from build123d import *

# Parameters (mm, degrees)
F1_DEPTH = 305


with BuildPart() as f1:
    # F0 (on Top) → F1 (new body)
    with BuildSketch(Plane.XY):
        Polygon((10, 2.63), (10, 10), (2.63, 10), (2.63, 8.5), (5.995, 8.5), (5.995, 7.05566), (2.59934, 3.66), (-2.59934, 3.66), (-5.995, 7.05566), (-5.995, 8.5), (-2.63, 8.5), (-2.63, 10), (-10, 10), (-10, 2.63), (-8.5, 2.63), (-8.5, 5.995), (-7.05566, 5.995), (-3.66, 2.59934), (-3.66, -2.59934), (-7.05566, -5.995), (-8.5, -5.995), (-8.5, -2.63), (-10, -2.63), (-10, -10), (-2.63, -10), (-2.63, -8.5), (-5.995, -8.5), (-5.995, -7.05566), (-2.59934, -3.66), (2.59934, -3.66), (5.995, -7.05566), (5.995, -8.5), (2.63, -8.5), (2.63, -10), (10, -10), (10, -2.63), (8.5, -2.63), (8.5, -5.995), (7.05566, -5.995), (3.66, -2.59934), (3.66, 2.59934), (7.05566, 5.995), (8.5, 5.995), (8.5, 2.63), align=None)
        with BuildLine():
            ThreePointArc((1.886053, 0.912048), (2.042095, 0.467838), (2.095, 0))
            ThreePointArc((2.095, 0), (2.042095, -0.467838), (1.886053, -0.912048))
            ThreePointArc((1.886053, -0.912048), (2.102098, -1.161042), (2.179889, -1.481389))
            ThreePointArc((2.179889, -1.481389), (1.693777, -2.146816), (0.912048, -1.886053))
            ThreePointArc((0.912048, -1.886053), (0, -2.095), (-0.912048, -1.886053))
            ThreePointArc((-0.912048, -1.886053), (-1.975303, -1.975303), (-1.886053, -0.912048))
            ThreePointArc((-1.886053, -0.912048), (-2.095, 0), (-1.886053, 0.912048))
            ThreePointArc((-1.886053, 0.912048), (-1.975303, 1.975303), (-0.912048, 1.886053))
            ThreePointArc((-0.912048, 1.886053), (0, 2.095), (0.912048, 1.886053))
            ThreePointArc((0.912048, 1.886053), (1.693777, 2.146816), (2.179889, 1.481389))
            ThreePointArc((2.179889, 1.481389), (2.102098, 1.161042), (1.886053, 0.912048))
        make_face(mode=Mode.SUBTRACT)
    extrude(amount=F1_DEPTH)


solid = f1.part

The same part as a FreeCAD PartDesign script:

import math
import FreeCAD as App
import Part
import Sketcher
Q = App.Units.Quantity

doc = App.newDocument("Part")
params = doc.addObject("Spreadsheet::Sheet", "Params")
for row, (alias, value) in enumerate([
    ("sketch1_width", "1.5 mm"),
    ("sketch1_width2", "7.37 mm"),
    ("pad1_length", "305 mm"),
], start=1):
    params.set(f"A{row}", alias)
    params.set(f"B{row}", "=" + value)
    params.setAlias(f"B{row}", alias)

body = doc.addObject("PartDesign::Body", "Body")

# Sketch on XY plane
sketch1 = body.newObject("Sketcher::SketchObject", "Sketch")
sketch1.AttachmentSupport = (doc.getObject("XY_Plane"), [""])
sketch1.MapMode = "FlatFace"
sketch1.addGeometry([
    Part.LineSegment(App.Vector(10, 2.6, 0), App.Vector(10, 10, 0)),  # 0
    Part.LineSegment(App.Vector(10, 10, 0), App.Vector(2.6, 10, 0)),  # 1
    Part.LineSegment(App.Vector(2.6, 10, 0), App.Vector(2.6, 8.5, 0)),  # 2
    Part.LineSegment(App.Vector(2.6, 8.5, 0), App.Vector(6, 8.5, 0)),  # 3
    Part.LineSegment(App.Vector(6, 8.5, 0), App.Vector(6, 7.1, 0)),  # 4
    Part.LineSegment(App.Vector(6, 7.1, 0), App.Vector(2.6, 3.7, 0)),  # 5
    Part.LineSegment(App.Vector(2.6, 3.7, 0), App.Vector(-2.6, 3.7, 0)),  # 6
    Part.LineSegment(App.Vector(-2.6, 3.7, 0), App.Vector(-6, 7.1, 0)),  # 7
    Part.LineSegment(App.Vector(-6, 7.1, 0), App.Vector(-6, 8.5, 0)),  # 8
    Part.LineSegment(App.Vector(-6, 8.5, 0), App.Vector(-2.6, 8.5, 0)),  # 9
    Part.LineSegment(App.Vector(-2.6, 8.5, 0), App.Vector(-2.6, 10, 0)),  # 10
    Part.LineSegment(App.Vector(-2.6, 10, 0), App.Vector(-10, 10, 0)),  # 11
    Part.LineSegment(App.Vector(-10, 10, 0), App.Vector(-10, 2.6, 0)),  # 12
    Part.LineSegment(App.Vector(-10, 2.6, 0), App.Vector(-8.5, 2.6, 0)),  # 13
    Part.LineSegment(App.Vector(-8.5, 2.6, 0), App.Vector(-8.5, 6, 0)),  # 14
    Part.LineSegment(App.Vector(-8.5, 6, 0), App.Vector(-7.1, 6, 0)),  # 15
    Part.LineSegment(App.Vector(-7.1, 6, 0), App.Vector(-3.7, 2.6, 0)),  # 16
    Part.LineSegment(App.Vector(-3.7, 2.6, 0), App.Vector(-3.7, -2.6, 0)),  # 17
    Part.LineSegment(App.Vector(-3.7, -2.6, 0), App.Vector(-7.1, -6, 0)),  # 18
    Part.LineSegment(App.Vector(-7.1, -6, 0), App.Vector(-8.5, -6, 0)),  # 19
    Part.LineSegment(App.Vector(-8.5, -6, 0), App.Vector(-8.5, -2.6, 0)),  # 20
    Part.LineSegment(App.Vector(-8.5, -2.6, 0), App.Vector(-10, -2.6, 0)),  # 21
    Part.LineSegment(App.Vector(-10, -2.6, 0), App.Vector(-10, -10, 0)),  # 22
    Part.LineSegment(App.Vector(-10, -10, 0), App.Vector(-2.6, -10, 0)),  # 23
    Part.LineSegment(App.Vector(-2.6, -10, 0), App.Vector(-2.6, -8.5, 0)),  # 24
    Part.LineSegment(App.Vector(-2.6, -8.5, 0), App.Vector(-6, -8.5, 0)),  # 25
    Part.LineSegment(App.Vector(-6, -8.5, 0), App.Vector(-6, -7.1, 0)),  # 26
    Part.LineSegment(App.Vector(-6, -7.1, 0), App.Vector(-2.6, -3.7, 0)),  # 27
    Part.LineSegment(App.Vector(-2.6, -3.7, 0), App.Vector(2.6, -3.7, 0)),  # 28
    Part.LineSegment(App.Vector(2.6, -3.7, 0), App.Vector(6, -7.1, 0)),  # 29
    Part.LineSegment(App.Vector(6, -7.1, 0), App.Vector(6, -8.5, 0)),  # 30
    Part.LineSegment(App.Vector(6, -8.5, 0), App.Vector(2.6, -8.5, 0)),  # 31
    Part.LineSegment(App.Vector(2.6, -8.5, 0), App.Vector(2.6, -10, 0)),  # 32
    Part.LineSegment(App.Vector(2.6, -10, 0), App.Vector(10, -10, 0)),  # 33
    Part.LineSegment(App.Vector(10, -10, 0), App.Vector(10, -2.6, 0)),  # 34
    Part.LineSegment(App.Vector(10, -2.6, 0), App.Vector(8.5, -2.6, 0)),  # 35
    Part.LineSegment(App.Vector(8.5, -2.6, 0), App.Vector(8.5, -6, 0)),  # 36
    Part.LineSegment(App.Vector(8.5, -6, 0), App.Vector(7.1, -6, 0)),  # 37
    Part.LineSegment(App.Vector(7.1, -6, 0), App.Vector(3.7, -2.6, 0)),  # 38
    Part.LineSegment(App.Vector(3.7, -2.6, 0), App.Vector(3.7, 2.6, 0)),  # 39
    Part.LineSegment(App.Vector(3.7, 2.6, 0), App.Vector(7.1, 6, 0)),  # 40
    Part.LineSegment(App.Vector(7.1, 6, 0), App.Vector(8.5, 6, 0)),  # 41
    Part.LineSegment(App.Vector(8.5, 6, 0), App.Vector(8.5, 2.6, 0)),  # 42
    Part.LineSegment(App.Vector(8.5, 2.6, 0), App.Vector(10, 2.6, 0)),  # 43
    Part.ArcOfCircle(Part.Circle(App.Vector(1.5, 1.5, 0), App.Vector(0, 0, 1), 0.7), math.radians(-55), math.radians(0)),  # 44
    Part.ArcOfCircle(Part.Circle(App.Vector(0, 0, 0), App.Vector(0, 0, 1), 2.1), math.radians(0), math.radians(26)),  # 45
    Part.ArcOfCircle(Part.Circle(App.Vector(0, 0, 0), App.Vector(0, 0, 1), 2.1), math.radians(-26), math.radians(0)),  # 46
    Part.ArcOfCircle(Part.Circle(App.Vector(1.5, -1.5, 0), App.Vector(0, 0, 1), 0.7), math.radians(0), math.radians(55)),  # 47
    Part.ArcOfCircle(Part.Circle(App.Vector(1.5, -1.5, 0), App.Vector(0, 0, 1), 0.7), math.radians(-145), math.radians(0)),  # 48
    Part.ArcOfCircle(Part.Circle(App.Vector(0, 0, 0), App.Vector(0, 0, 1), 2.1), math.radians(-116), math.radians(-64)),  # 49
    Part.ArcOfCircle(Part.Circle(App.Vector(-1.5, -1.5, 0), App.Vector(0, 0, 1), 0.7), math.radians(125), math.radians(325)),  # 50
    Part.ArcOfCircle(Part.Circle(App.Vector(0, 0, 0), App.Vector(0, 0, 1), 2.1), math.radians(154), math.radians(206)),  # 51
    Part.ArcOfCircle(Part.Circle(App.Vector(-1.5, 1.5, 0), App.Vector(0, 0, 1), 0.7), math.radians(35), math.radians(235)),  # 52
    Part.ArcOfCircle(Part.Circle(App.Vector(0, 0, 0), App.Vector(0, 0, 1), 2.1), math.radians(64), math.radians(116)),  # 53
    Part.ArcOfCircle(Part.Circle(App.Vector(1.5, 1.5, 0), App.Vector(0, 0, 1), 0.7), math.radians(0), math.radians(145)),  # 54
], False)
sketch1.addConstraint([
    Sketcher.Constraint("Coincident", 0, 2, 1, 1),
    Sketcher.Constraint("Coincident", 1, 2, 2, 1),
    Sketcher.Constraint("Coincident", 2, 2, 3, 1),
    Sketcher.Constraint("Coincident", 3, 2, 4, 1),
    Sketcher.Constraint("Coincident", 4, 2, 5, 1),
    Sketcher.Constraint("Coincident", 5, 2, 6, 1),
    Sketcher.Constraint("Coincident", 6, 2, 7, 1),
    Sketcher.Constraint("Coincident", 7, 2, 8, 1),
    Sketcher.Constraint("Coincident", 8, 2, 9, 1),
    Sketcher.Constraint("Coincident", 9, 2, 10, 1),
    Sketcher.Constraint("Coincident", 10, 2, 11, 1),
    Sketcher.Constraint("Coincident", 11, 2, 12, 1),
    Sketcher.Constraint("Coincident", 12, 2, 13, 1),
    Sketcher.Constraint("Coincident", 13, 2, 14, 1),
    Sketcher.Constraint("Coincident", 14, 2, 15, 1),
    Sketcher.Constraint("Coincident", 15, 2, 16, 1),
    Sketcher.Constraint("Coincident", 16, 2, 17, 1),
    Sketcher.Constraint("Coincident", 17, 2, 18, 1),
    Sketcher.Constraint("Coincident", 18, 2, 19, 1),
    Sketcher.Constraint("Coincident", 19, 2, 20, 1),
    Sketcher.Constraint("Coincident", 20, 2, 21, 1),
    Sketcher.Constraint("Coincident", 21, 2, 22, 1),
    Sketcher.Constraint("Coincident", 22, 2, 23, 1),
    Sketcher.Constraint("Coincident", 23, 2, 24, 1),
    Sketcher.Constraint("Coincident", 24, 2, 25, 1),
    Sketcher.Constraint("Coincident", 25, 2, 26, 1),
    Sketcher.Constraint("Coincident", 26, 2, 27, 1),
    Sketcher.Constraint("Coincident", 27, 2, 28, 1),
    Sketcher.Constraint("Coincident", 28, 2, 29, 1),
    Sketcher.Constraint("Coincident", 29, 2, 30, 1),
    Sketcher.Constraint("Coincident", 30, 2, 31, 1),
    Sketcher.Constraint("Coincident", 31, 2, 32, 1),
    Sketcher.Constraint("Coincident", 32, 2, 33, 1),
    Sketcher.Constraint("Coincident", 33, 2, 34, 1),
    Sketcher.Constraint("Coincident", 34, 2, 35, 1),
    Sketcher.Constraint("Coincident", 35, 2, 36, 1),
    Sketcher.Constraint("Coincident", 36, 2, 37, 1),
    Sketcher.Constraint("Coincident", 37, 2, 38, 1),
    Sketcher.Constraint("Coincident", 38, 2, 39, 1),
    Sketcher.Constraint("Coincident", 39, 2, 40, 1),
    Sketcher.Constraint("Coincident", 40, 2, 41, 1),
    Sketcher.Constraint("Coincident", 41, 2, 42, 1),
    Sketcher.Constraint("Coincident", 42, 2, 43, 1),
    Sketcher.Constraint("Coincident", 43, 2, 0, 1),
    Sketcher.Constraint("Coincident", 44, 1, 45, 2),
    Sketcher.Constraint("Coincident", 45, 1, 46, 2),
    Sketcher.Constraint("Coincident", 46, 1, 47, 2),
    Sketcher.Constraint("Coincident", 47, 1, 48, 2),
    Sketcher.Constraint("Coincident", 48, 1, 49, 2),
    Sketcher.Constraint("Coincident", 49, 1, 50, 2),
    Sketcher.Constraint("Coincident", 50, 1, 51, 2),
    Sketcher.Constraint("Coincident", 51, 1, 52, 2),
    Sketcher.Constraint("Coincident", 52, 1, 53, 2),
    Sketcher.Constraint("Coincident", 53, 1, 54, 2),
    Sketcher.Constraint("Coincident", 54, 1, 44, 2),
    Sketcher.Constraint("Vertical", 0),
    Sketcher.Constraint("Horizontal", 1),
    Sketcher.Constraint("Vertical", 2),
    Sketcher.Constraint("Horizontal", 3),
    Sketcher.Constraint("Vertical", 4),
    Sketcher.Constraint("Horizontal", 6),
    Sketcher.Constraint("Vertical", 8),
    Sketcher.Constraint("Horizontal", 9),
    Sketcher.Constraint("Vertical", 10),
    Sketcher.Constraint("Horizontal", 11),
    Sketcher.Constraint("Vertical", 12),
    Sketcher.Constraint("Horizontal", 13),
    Sketcher.Constraint("Vertical", 14),
    Sketcher.Constraint("Horizontal", 15),
    Sketcher.Constraint("Vertical", 17),
    Sketcher.Constraint("Horizontal", 19),
    Sketcher.Constraint("Vertical", 20),
    Sketcher.Constraint("Horizontal", 21),
    Sketcher.Constraint("Vertical", 22),
    Sketcher.Constraint("Horizontal", 23),
    Sketcher.Constraint("Vertical", 24),
    Sketcher.Constraint("Horizontal", 25),
    Sketcher.Constraint("Vertical", 26),
    Sketcher.Constraint("Horizontal", 28),
    Sketcher.Constraint("Vertical", 30),
    Sketcher.Constraint("Horizontal", 31),
    Sketcher.Constraint("Vertical", 32),
    Sketcher.Constraint("Horizontal", 33),
    Sketcher.Constraint("Vertical", 34),
    Sketcher.Constraint("Horizontal", 35),
    Sketcher.Constraint("Vertical", 36),
    Sketcher.Constraint("Horizontal", 37),
    Sketcher.Constraint("Vertical", 39),
    Sketcher.Constraint("Horizontal", 41),
    Sketcher.Constraint("Vertical", 42),
    Sketcher.Constraint("Horizontal", 43),
    Sketcher.Constraint("Coincident", 49, 3, -1, 1),
    Sketcher.Constraint("Coincident", 51, 3, -1, 1),
    Sketcher.Constraint("Coincident", 53, 3, -1, 1),
    Sketcher.Constraint("Coincident", 46, 3, 45, 3),
    Sketcher.Constraint("Coincident", 48, 3, 47, 3),
    Sketcher.Constraint("Coincident", 54, 3, 44, 3),
    Sketcher.Constraint("Equal", 44, 47),
    Sketcher.Constraint("Equal", 48, 50),
    Sketcher.Constraint("Equal", 49, 51),
    Sketcher.Constraint("Equal", 50, 52),
    Sketcher.Constraint("Equal", 51, 53),
    Sketcher.Constraint("Symmetric", 44, 3, 50, 3, -1, 1),
    Sketcher.Constraint("Symmetric", 47, 3, 52, 3, -1, 1),
    Sketcher.Constraint("Symmetric", 0, 2, 22, 2, -1, 1),
    Sketcher.Constraint("Symmetric", 2, 2, 24, 2, -1, 1),
    Sketcher.Constraint("Symmetric", 4, 2, 26, 2, -1, 1),
    Sketcher.Constraint("Symmetric", 5, 2, 27, 2, -1, 1),
    Sketcher.Constraint("Symmetric", 7, 2, 29, 2, -1, 1),
    Sketcher.Constraint("Symmetric", 9, 2, 31, 2, -1, 1),
    Sketcher.Constraint("Symmetric", 11, 2, 33, 2, -1, 1),
    Sketcher.Constraint("Symmetric", 13, 2, 35, 2, -1, 1),
    Sketcher.Constraint("Symmetric", 15, 2, 37, 2, -1, 1),
    Sketcher.Constraint("Symmetric", 16, 2, 38, 2, -1, 1),
    Sketcher.Constraint("Symmetric", 18, 2, 40, 2, -1, 1),
    Sketcher.Constraint("Symmetric", 20, 2, 42, 2, -1, 1),
    Sketcher.Constraint("Symmetric", 47, 3, 50, 3, -2),
    Sketcher.Constraint("Symmetric", 4, 2, 7, 2, -2),
    Sketcher.Constraint("Symmetric", 2, 2, 9, 2, -2),
    Sketcher.Constraint("Symmetric", 0, 2, 11, 2, -2),
    Sketcher.Constraint("Symmetric", 20, 2, 35, 2, -2),
    Sketcher.Constraint("Symmetric", 18, 2, 37, 2, -2),
    Sketcher.Constraint("PointOnObject", 45, 1, -1),
    Sketcher.Constraint("Perpendicular", 5, 7),
    Sketcher.Constraint("Parallel", 7, 16),
    Sketcher.Constraint("Perpendicular", 16, 18),
    Sketcher.Constraint("Perpendicular", 27, 29),
    Sketcher.Constraint("Perpendicular", 38, 40),
    Sketcher.Constraint("Horizontal", 17, 2, 38, 2),
    Sketcher.Constraint("Horizontal", 50, 3, 47, 1),
    Sketcher.Constraint("Horizontal", 46, 1, 50, 1),
    Sketcher.Constraint("Horizontal", 44, 1, 51, 1),
    Sketcher.Constraint("Horizontal", 52, 3, 54, 1),
    Sketcher.Constraint("Equal", 33, 0),
    Sketcher.Constraint("Equal", 43, 2),
    Sketcher.Constraint("Equal", 41, 4),
    Sketcher.Constraint("Equal", 31, 14),
    Sketcher.Constraint("Equal", 28, 17),
    Sketcher.Constraint("Equal", 7, 16),
    Sketcher.Constraint("DistanceX", 13, 1, 13, 2, Q("1.5 mm")),
    Sketcher.Constraint("DistanceX", -1, 1, 0, 2, Q("10 mm")),
    Sketcher.Constraint("DistanceX", 1, 2, 1, 1, Q("7.37 mm")),
    Sketcher.Constraint("Radius", 44, Q("0.698502 mm")),
    Sketcher.Constraint("DistanceX", 3, 1, 3, 2, Q("3.365 mm")),
    Sketcher.Constraint("DistanceY", -1, 1, 5, 2, Q("3.66 mm")),
    Sketcher.Constraint("DistanceX", -1, 1, 45, 1, Q("2.095 mm")),
    Sketcher.Constraint("Radius", 45, Q("2.095017 mm")),
    Sketcher.Constraint("DistanceX", 6, 2, 6, 1, Q("5.19868 mm")),
    Sketcher.Constraint("DistanceY", -1, 1, 44, 3, Q("1.48139 mm")),
    Sketcher.Constraint("DistanceX", -1, 1, 48, 3, Q("1.481389 mm")),
])
sketch1.setExpression("Constraints[139]", "Params.sketch1_width")
sketch1.setExpression("Constraints[141]", "Params.sketch1_width2")
pad1 = body.newObject("PartDesign::Pad", "Pad")
pad1.Profile = sketch1
pad1.setExpression("Length", "Params.pad1_length")

doc.recompute()
